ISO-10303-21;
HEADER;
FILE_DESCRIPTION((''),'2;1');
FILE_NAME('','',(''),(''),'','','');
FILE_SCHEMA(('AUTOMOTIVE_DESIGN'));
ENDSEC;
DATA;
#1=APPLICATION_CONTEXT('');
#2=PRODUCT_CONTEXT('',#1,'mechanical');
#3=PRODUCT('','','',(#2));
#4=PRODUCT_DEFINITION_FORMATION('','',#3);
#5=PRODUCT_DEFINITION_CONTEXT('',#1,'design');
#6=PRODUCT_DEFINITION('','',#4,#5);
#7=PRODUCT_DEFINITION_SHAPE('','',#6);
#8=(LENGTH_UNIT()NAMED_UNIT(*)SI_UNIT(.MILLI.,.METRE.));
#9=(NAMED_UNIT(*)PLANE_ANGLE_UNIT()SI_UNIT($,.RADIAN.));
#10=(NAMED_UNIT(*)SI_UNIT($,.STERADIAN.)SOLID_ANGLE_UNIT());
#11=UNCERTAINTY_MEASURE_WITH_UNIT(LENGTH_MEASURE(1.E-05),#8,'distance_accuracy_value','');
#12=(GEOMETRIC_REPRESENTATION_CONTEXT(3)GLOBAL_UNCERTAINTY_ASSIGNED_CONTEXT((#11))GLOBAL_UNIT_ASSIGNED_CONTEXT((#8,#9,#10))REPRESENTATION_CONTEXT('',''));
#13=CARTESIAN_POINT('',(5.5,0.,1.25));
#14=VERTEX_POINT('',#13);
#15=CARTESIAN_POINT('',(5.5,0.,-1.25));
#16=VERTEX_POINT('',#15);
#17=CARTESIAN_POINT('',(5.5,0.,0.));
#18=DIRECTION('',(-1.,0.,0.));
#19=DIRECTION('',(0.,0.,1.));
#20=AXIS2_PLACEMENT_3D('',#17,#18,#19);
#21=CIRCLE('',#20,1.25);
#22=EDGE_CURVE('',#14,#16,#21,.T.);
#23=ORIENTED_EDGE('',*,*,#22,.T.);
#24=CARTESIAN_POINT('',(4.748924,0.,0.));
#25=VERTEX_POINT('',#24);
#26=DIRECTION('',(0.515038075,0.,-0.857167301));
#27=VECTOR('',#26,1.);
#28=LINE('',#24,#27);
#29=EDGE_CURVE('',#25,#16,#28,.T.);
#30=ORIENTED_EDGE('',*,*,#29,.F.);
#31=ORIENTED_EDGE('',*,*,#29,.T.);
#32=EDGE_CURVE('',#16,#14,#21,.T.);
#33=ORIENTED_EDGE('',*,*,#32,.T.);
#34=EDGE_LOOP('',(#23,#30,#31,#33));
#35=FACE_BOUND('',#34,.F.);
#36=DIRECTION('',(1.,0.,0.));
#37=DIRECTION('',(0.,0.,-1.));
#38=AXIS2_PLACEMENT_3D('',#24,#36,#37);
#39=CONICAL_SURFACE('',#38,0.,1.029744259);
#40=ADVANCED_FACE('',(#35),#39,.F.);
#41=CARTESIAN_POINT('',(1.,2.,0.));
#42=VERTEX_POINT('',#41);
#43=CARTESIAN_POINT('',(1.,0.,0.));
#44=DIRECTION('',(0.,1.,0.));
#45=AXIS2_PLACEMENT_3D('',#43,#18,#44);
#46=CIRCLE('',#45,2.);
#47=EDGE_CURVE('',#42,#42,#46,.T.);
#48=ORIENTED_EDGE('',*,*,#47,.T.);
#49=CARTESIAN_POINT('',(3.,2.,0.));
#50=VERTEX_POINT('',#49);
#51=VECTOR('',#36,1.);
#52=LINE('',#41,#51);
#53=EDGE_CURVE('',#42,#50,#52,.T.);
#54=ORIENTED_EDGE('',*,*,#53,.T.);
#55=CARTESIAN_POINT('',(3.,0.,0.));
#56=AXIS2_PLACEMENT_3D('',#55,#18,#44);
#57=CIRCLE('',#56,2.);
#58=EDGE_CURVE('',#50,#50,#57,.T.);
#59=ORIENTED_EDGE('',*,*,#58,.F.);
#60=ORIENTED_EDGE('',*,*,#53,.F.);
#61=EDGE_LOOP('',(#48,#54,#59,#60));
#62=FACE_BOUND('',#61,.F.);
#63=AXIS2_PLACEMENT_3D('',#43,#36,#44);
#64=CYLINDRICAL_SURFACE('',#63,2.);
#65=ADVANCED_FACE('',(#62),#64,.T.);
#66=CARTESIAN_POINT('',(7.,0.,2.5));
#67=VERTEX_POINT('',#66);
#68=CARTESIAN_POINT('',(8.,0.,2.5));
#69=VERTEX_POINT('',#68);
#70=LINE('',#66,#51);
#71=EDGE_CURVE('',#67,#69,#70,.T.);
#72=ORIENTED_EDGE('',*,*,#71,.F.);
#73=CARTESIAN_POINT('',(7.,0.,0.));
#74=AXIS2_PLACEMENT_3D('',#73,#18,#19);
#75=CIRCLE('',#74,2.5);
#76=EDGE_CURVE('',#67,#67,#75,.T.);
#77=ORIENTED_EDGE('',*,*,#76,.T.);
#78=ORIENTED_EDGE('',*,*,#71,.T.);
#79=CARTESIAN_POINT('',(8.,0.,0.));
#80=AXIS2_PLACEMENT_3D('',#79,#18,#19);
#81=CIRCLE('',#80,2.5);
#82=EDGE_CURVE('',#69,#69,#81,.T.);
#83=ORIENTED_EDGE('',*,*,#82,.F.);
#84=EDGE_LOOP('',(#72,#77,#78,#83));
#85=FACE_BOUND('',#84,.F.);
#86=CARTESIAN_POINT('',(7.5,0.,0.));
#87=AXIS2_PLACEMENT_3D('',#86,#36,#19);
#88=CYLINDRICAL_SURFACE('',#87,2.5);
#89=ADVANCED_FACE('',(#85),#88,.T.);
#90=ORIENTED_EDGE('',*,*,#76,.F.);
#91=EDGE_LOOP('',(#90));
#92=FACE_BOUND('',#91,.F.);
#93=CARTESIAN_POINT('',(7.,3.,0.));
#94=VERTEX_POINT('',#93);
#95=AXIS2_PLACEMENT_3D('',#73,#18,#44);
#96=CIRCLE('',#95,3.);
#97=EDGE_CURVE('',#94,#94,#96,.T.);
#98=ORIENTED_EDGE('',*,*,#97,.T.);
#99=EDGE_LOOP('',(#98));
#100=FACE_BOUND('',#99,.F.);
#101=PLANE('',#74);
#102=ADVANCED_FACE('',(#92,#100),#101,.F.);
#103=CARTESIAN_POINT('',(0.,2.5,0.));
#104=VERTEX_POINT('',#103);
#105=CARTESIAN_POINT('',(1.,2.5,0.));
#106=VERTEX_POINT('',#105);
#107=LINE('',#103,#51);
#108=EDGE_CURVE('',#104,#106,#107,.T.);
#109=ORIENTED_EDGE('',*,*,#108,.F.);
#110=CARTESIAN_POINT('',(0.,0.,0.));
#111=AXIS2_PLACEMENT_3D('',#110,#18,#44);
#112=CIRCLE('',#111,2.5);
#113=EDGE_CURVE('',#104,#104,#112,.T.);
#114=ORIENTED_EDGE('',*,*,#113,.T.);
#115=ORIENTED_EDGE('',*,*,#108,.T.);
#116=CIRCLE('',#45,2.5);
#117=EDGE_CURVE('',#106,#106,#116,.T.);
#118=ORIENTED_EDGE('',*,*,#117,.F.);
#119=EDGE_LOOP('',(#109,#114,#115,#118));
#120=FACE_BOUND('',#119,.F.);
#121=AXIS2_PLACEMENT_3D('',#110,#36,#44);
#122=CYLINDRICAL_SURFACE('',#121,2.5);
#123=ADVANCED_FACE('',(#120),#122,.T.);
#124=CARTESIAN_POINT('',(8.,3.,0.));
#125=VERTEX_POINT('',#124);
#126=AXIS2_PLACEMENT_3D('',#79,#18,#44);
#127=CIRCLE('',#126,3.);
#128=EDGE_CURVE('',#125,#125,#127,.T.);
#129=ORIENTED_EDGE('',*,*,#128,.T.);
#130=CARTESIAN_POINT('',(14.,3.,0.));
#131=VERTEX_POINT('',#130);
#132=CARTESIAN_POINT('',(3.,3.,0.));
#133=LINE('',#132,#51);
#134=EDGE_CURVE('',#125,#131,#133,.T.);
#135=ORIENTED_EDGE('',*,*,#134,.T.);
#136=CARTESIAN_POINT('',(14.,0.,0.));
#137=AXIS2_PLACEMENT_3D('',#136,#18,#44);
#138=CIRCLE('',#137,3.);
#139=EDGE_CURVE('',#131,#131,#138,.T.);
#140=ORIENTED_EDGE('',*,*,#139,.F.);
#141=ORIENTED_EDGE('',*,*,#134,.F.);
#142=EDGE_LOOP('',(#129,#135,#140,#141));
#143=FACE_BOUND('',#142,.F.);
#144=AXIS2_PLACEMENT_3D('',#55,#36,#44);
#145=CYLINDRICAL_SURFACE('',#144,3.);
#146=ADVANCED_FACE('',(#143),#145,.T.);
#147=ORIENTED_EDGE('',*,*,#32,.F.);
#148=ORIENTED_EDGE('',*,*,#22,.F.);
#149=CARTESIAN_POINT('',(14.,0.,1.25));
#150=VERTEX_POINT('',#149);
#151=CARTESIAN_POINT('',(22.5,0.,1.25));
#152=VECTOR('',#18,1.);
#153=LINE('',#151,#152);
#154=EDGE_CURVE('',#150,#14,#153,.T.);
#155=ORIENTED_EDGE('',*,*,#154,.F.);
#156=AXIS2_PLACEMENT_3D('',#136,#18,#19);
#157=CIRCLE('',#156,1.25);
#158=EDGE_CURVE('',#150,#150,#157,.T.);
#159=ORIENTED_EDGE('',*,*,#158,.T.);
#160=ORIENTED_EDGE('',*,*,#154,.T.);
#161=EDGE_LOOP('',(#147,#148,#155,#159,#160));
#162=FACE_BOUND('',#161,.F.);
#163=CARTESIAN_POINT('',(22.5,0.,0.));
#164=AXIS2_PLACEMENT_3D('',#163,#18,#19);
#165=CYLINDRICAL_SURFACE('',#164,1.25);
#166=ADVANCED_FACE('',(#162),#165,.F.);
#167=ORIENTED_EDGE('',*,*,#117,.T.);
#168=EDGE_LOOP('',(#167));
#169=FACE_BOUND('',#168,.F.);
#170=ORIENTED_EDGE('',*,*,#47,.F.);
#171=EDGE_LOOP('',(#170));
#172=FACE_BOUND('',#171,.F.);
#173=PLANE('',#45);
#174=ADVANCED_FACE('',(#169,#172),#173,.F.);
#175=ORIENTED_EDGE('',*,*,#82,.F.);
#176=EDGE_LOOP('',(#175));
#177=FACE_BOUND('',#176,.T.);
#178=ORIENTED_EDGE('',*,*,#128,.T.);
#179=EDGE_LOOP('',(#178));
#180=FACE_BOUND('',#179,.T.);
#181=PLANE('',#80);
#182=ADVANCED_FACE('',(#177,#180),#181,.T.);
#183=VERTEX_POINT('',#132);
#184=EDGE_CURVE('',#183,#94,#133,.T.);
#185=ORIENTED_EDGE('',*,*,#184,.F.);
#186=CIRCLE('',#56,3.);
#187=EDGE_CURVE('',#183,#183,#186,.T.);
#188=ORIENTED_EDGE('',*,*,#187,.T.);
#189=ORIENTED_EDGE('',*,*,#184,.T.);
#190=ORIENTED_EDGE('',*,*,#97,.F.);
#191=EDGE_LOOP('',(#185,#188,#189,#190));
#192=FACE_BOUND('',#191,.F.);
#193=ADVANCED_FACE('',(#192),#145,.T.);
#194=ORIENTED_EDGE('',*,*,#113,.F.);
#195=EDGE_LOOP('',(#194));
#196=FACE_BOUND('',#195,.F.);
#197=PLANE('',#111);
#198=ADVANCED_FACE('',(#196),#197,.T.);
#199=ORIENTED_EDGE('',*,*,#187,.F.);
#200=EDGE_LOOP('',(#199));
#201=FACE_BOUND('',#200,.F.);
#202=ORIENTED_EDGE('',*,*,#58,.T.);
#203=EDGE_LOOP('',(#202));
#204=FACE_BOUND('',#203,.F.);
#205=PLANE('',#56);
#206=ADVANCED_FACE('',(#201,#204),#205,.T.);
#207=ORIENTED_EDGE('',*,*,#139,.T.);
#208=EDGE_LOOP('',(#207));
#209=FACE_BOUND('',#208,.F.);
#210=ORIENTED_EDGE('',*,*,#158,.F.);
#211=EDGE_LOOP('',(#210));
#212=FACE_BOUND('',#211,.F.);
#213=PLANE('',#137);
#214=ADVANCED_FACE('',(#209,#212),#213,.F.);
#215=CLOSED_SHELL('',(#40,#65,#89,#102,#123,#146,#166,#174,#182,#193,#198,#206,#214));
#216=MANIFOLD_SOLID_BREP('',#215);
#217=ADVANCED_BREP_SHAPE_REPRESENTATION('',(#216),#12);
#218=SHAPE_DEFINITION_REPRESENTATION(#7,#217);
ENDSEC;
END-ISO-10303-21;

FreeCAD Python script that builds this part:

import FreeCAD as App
import Part
import Sketcher

V = App.Vector


def add_polygon(sketch, points):
    """Adds a closed chain of lines whose ends are joined by coincident constraints."""
    first, n = sketch.GeometryCount, len(points)
    for a, b in zip(points, points[1:] + points[:1]):
        sketch.addGeometry(Part.LineSegment(App.Vector(*a, 0), App.Vector(*b, 0)), False)
    for i in range(n):
        sketch.addConstraint(Sketcher.Constraint("Coincident", first + i, 2, first + (i + 1) % n, 1))

doc = App.newDocument("Part")
body = doc.addObject("PartDesign::Body", "Body")

# Sketch on XY plane
sketch1 = body.newObject("Sketcher::SketchObject", "Sketch")
sketch1.AttachmentSupport = (doc.getObject("XY_Plane"), [""])
sketch1.MapMode = "FlatFace"
add_polygon(sketch1, [(0, 2.5), (0, 0), (14, 0), (14, 3), (3, 3), (3, 2), (1, 2), (1, 2.5)])  # lines 0-7
sketch1.addConstraint(Sketcher.Constraint("Vertical", 0))
sketch1.addConstraint(Sketcher.Constraint("Horizontal", 1))
sketch1.addConstraint(Sketcher.Constraint("Vertical", 2))
sketch1.addConstraint(Sketcher.Constraint("Horizontal", 3))
sketch1.addConstraint(Sketcher.Constraint("Vertical", 4))
sketch1.addConstraint(Sketcher.Constraint("Horizontal", 5))
sketch1.addConstraint(Sketcher.Constraint("Vertical", 6))
sketch1.addConstraint(Sketcher.Constraint("Horizontal", 7))
sketch1.addConstraint(Sketcher.Constraint("Coincident", 0, 2, -1, 1))
sketch1.addConstraint(Sketcher.Constraint("Equal", 7, 4))
sketch1.addConstraint(Sketcher.Constraint("DistanceX", 1, 1, 1, 2, 14.0))
sketch1.addConstraint(Sketcher.Constraint("DistanceX", 3, 2, 3, 1, 11.0))
sketch1.addConstraint(Sketcher.Constraint("DistanceX", 5, 2, 5, 1, 2.0))
sketch1.addConstraint(Sketcher.Constraint("DistanceY", 2, 1, 2, 2, 3.0))
sketch1.addConstraint(Sketcher.Constraint("DistanceY", 0, 2, 0, 1, 2.5))
revolution = body.newObject("PartDesign::Revolution", "Revolution")
revolution.Profile = sketch1
revolution.ReferenceAxis = (sketch1, ["H_Axis"])
revolution.Angle = 360

# Sketch on YZ plane
sketch2 = body.newObject("Sketcher::SketchObject", "Sketch001")
sketch2.AttachmentSupport = (doc.getObject("YZ_Plane"), [""])
sketch2.MapMode = "FlatFace"
sketch2.AttachmentOffset = App.Placement(V(0, 0, 14), App.Rotation())
sketch2.addGeometry(Part.Circle(V(0, 0, 0), V(0, 0, 1), 1.2), False)
sketch2.addConstraint(Sketcher.Constraint("Coincident", 0, 3, -1, 1))
sketch2.addConstraint(Sketcher.Constraint("Diameter", 0, 2.5))
doc.recompute()
hole = body.newObject("PartDesign::Hole", "Hole")
hole.Profile = sketch2
hole.ThreadType = "None"
hole.Diameter = 2.5
hole.DepthType = "Dimension"
hole.Depth = 8.5
hole.DrillPoint = "Angled"
hole.DrillPointAngle = 118

# Sketch on YZ plane
sketch3 = body.newObject("Sketcher::SketchObject", "Sketch002")
sketch3.AttachmentSupport = (doc.getObject("YZ_Plane"), [""])
sketch3.MapMode = "FlatFace"
sketch3.AttachmentOffset = App.Placement(V(0, 0, 7.5), App.Rotation())
sketch3.addGeometry(Part.Circle(V(0, 0, 0), V(0, 0, 1), 3), False)
sketch3.addGeometry(Part.Circle(V(0, 0, 0), V(0, 0, 1), 2.5), False)
sketch3.addConstraint(Sketcher.Constraint("Coincident", 0, 3, -1, 1))
sketch3.addConstraint(Sketcher.Constraint("Coincident", 1, 3, -1, 1))
sketch3.addConstraint(Sketcher.Constraint("Diameter", 0, 6.0))
sketch3.addConstraint(Sketcher.Constraint("Diameter", 1, 5.0))
pocket1 = body.newObject("PartDesign::Pocket", "Pocket")
pocket1.Profile = sketch3
pocket1.Length = 1
pocket1.Midplane = True

doc.recompute()
